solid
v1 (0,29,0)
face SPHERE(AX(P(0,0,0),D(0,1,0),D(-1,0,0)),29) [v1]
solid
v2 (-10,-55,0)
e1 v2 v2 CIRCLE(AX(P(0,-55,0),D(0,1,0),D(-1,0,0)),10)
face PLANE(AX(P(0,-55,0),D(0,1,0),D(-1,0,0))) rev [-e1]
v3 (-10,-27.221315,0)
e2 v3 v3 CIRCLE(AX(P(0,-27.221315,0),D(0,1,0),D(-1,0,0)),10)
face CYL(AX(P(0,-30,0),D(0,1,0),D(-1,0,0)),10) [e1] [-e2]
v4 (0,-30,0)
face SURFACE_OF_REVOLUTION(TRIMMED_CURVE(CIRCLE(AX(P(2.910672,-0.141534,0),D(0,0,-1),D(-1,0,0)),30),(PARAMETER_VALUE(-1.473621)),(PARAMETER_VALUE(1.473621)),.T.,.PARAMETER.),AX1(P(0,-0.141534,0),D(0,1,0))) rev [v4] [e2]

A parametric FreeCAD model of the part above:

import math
import FreeCAD as App
import Part
import Sketcher

doc = App.newDocument("Part")
body = doc.addObject("PartDesign::Body", "Body")

# Sketch on XY plane
sketch1 = body.newObject("Sketcher::SketchObject", "Sketch")
sketch1.AttachmentSupport = (doc.getObject("XY_Plane"), [""])
sketch1.MapMode = "FlatFace"
sketch1.addGeometry([
    Part.LineSegment(App.Vector(0, 29, 0), App.Vector(0, -29, 0)),
    Part.ArcOfCircle(Part.Circle(App.Vector(0, 0, 0), App.Vector(0, 0, 1), 29), math.radians(-90), math.radians(90)),
], False)
sketch1.addConstraint([
    Sketcher.Constraint("Coincident", 0, 1, 1, 2),
    Sketcher.Constraint("Coincident", 1, 1, 0, 2),
    Sketcher.Constraint("Vertical", 0),
    Sketcher.Constraint("Coincident", 1, 3, -1, 1),
    Sketcher.Constraint("PointOnObject", 0, 1, -2),
    Sketcher.Constraint("Radius", 1, 29.0),
])
revolution = body.newObject("PartDesign::Revolution", "Revolution")
revolution.Profile = sketch1
revolution.ReferenceAxis = (sketch1, ["V_Axis"])
revolution.Angle = 360
body2 = doc.addObject("PartDesign::Body", "Body001")

# Sketch on XY plane
sketch2 = body2.newObject("Sketcher::SketchObject", "Sketch001")
sketch2.AttachmentSupport = (doc.getObject("XY_Plane001"), [""])
sketch2.MapMode = "FlatFace"
sketch2.addGeometry([
    Part.LineSegment(App.Vector(0, -30, 0), App.Vector(0, -55, 0)),
    Part.LineSegment(App.Vector(0, -55, 0), App.Vector(10, -55, 0)),
    Part.LineSegment(App.Vector(10, -55, 0), App.Vector(10, -27.221315, 0)),
    Part.ArcOfCircle(Part.Circle(App.Vector(-2.910672, -0.141534, 0), App.Vector(0, 0, 1), 30), math.radians(-84.432267), math.radians(-64.509862)),
], False)
sketch2.addConstraint([
    Sketcher.Constraint("Coincident", 0, 2, 1, 1),
    Sketcher.Constraint("Coincident", 1, 2, 2, 1),
    Sketcher.Constraint("Coincident", 2, 2, 3, 2),
    Sketcher.Constraint("Coincident", 3, 1, 0, 1),
    Sketcher.Constraint("Vertical", 0),
    Sketcher.Constraint("Horizontal", 1),
    Sketcher.Constraint("Vertical", 2),
    Sketcher.Constraint("PointOnObject", 0, 2, -2),
    Sketcher.Constraint("Radius", 3, 30.0),
    Sketcher.Constraint("DistanceX", 1, 1, 1, 2, 10.0),
    Sketcher.Constraint("DistanceY", 0, 2, 0, 1, 25.0),
    Sketcher.Constraint("DistanceY", 0, 2, -1, 1, 55.0),
    Sketcher.Constraint("DistanceY", 2, 1, 2, 2, 27.778685),
])
revolution2 = body2.newObject("PartDesign::Revolution", "Revolution001")
revolution2.Profile = sketch2
revolution2.ReferenceAxis = (sketch2, ["V_Axis"])
revolution2.Angle = 360

doc.recompute()
